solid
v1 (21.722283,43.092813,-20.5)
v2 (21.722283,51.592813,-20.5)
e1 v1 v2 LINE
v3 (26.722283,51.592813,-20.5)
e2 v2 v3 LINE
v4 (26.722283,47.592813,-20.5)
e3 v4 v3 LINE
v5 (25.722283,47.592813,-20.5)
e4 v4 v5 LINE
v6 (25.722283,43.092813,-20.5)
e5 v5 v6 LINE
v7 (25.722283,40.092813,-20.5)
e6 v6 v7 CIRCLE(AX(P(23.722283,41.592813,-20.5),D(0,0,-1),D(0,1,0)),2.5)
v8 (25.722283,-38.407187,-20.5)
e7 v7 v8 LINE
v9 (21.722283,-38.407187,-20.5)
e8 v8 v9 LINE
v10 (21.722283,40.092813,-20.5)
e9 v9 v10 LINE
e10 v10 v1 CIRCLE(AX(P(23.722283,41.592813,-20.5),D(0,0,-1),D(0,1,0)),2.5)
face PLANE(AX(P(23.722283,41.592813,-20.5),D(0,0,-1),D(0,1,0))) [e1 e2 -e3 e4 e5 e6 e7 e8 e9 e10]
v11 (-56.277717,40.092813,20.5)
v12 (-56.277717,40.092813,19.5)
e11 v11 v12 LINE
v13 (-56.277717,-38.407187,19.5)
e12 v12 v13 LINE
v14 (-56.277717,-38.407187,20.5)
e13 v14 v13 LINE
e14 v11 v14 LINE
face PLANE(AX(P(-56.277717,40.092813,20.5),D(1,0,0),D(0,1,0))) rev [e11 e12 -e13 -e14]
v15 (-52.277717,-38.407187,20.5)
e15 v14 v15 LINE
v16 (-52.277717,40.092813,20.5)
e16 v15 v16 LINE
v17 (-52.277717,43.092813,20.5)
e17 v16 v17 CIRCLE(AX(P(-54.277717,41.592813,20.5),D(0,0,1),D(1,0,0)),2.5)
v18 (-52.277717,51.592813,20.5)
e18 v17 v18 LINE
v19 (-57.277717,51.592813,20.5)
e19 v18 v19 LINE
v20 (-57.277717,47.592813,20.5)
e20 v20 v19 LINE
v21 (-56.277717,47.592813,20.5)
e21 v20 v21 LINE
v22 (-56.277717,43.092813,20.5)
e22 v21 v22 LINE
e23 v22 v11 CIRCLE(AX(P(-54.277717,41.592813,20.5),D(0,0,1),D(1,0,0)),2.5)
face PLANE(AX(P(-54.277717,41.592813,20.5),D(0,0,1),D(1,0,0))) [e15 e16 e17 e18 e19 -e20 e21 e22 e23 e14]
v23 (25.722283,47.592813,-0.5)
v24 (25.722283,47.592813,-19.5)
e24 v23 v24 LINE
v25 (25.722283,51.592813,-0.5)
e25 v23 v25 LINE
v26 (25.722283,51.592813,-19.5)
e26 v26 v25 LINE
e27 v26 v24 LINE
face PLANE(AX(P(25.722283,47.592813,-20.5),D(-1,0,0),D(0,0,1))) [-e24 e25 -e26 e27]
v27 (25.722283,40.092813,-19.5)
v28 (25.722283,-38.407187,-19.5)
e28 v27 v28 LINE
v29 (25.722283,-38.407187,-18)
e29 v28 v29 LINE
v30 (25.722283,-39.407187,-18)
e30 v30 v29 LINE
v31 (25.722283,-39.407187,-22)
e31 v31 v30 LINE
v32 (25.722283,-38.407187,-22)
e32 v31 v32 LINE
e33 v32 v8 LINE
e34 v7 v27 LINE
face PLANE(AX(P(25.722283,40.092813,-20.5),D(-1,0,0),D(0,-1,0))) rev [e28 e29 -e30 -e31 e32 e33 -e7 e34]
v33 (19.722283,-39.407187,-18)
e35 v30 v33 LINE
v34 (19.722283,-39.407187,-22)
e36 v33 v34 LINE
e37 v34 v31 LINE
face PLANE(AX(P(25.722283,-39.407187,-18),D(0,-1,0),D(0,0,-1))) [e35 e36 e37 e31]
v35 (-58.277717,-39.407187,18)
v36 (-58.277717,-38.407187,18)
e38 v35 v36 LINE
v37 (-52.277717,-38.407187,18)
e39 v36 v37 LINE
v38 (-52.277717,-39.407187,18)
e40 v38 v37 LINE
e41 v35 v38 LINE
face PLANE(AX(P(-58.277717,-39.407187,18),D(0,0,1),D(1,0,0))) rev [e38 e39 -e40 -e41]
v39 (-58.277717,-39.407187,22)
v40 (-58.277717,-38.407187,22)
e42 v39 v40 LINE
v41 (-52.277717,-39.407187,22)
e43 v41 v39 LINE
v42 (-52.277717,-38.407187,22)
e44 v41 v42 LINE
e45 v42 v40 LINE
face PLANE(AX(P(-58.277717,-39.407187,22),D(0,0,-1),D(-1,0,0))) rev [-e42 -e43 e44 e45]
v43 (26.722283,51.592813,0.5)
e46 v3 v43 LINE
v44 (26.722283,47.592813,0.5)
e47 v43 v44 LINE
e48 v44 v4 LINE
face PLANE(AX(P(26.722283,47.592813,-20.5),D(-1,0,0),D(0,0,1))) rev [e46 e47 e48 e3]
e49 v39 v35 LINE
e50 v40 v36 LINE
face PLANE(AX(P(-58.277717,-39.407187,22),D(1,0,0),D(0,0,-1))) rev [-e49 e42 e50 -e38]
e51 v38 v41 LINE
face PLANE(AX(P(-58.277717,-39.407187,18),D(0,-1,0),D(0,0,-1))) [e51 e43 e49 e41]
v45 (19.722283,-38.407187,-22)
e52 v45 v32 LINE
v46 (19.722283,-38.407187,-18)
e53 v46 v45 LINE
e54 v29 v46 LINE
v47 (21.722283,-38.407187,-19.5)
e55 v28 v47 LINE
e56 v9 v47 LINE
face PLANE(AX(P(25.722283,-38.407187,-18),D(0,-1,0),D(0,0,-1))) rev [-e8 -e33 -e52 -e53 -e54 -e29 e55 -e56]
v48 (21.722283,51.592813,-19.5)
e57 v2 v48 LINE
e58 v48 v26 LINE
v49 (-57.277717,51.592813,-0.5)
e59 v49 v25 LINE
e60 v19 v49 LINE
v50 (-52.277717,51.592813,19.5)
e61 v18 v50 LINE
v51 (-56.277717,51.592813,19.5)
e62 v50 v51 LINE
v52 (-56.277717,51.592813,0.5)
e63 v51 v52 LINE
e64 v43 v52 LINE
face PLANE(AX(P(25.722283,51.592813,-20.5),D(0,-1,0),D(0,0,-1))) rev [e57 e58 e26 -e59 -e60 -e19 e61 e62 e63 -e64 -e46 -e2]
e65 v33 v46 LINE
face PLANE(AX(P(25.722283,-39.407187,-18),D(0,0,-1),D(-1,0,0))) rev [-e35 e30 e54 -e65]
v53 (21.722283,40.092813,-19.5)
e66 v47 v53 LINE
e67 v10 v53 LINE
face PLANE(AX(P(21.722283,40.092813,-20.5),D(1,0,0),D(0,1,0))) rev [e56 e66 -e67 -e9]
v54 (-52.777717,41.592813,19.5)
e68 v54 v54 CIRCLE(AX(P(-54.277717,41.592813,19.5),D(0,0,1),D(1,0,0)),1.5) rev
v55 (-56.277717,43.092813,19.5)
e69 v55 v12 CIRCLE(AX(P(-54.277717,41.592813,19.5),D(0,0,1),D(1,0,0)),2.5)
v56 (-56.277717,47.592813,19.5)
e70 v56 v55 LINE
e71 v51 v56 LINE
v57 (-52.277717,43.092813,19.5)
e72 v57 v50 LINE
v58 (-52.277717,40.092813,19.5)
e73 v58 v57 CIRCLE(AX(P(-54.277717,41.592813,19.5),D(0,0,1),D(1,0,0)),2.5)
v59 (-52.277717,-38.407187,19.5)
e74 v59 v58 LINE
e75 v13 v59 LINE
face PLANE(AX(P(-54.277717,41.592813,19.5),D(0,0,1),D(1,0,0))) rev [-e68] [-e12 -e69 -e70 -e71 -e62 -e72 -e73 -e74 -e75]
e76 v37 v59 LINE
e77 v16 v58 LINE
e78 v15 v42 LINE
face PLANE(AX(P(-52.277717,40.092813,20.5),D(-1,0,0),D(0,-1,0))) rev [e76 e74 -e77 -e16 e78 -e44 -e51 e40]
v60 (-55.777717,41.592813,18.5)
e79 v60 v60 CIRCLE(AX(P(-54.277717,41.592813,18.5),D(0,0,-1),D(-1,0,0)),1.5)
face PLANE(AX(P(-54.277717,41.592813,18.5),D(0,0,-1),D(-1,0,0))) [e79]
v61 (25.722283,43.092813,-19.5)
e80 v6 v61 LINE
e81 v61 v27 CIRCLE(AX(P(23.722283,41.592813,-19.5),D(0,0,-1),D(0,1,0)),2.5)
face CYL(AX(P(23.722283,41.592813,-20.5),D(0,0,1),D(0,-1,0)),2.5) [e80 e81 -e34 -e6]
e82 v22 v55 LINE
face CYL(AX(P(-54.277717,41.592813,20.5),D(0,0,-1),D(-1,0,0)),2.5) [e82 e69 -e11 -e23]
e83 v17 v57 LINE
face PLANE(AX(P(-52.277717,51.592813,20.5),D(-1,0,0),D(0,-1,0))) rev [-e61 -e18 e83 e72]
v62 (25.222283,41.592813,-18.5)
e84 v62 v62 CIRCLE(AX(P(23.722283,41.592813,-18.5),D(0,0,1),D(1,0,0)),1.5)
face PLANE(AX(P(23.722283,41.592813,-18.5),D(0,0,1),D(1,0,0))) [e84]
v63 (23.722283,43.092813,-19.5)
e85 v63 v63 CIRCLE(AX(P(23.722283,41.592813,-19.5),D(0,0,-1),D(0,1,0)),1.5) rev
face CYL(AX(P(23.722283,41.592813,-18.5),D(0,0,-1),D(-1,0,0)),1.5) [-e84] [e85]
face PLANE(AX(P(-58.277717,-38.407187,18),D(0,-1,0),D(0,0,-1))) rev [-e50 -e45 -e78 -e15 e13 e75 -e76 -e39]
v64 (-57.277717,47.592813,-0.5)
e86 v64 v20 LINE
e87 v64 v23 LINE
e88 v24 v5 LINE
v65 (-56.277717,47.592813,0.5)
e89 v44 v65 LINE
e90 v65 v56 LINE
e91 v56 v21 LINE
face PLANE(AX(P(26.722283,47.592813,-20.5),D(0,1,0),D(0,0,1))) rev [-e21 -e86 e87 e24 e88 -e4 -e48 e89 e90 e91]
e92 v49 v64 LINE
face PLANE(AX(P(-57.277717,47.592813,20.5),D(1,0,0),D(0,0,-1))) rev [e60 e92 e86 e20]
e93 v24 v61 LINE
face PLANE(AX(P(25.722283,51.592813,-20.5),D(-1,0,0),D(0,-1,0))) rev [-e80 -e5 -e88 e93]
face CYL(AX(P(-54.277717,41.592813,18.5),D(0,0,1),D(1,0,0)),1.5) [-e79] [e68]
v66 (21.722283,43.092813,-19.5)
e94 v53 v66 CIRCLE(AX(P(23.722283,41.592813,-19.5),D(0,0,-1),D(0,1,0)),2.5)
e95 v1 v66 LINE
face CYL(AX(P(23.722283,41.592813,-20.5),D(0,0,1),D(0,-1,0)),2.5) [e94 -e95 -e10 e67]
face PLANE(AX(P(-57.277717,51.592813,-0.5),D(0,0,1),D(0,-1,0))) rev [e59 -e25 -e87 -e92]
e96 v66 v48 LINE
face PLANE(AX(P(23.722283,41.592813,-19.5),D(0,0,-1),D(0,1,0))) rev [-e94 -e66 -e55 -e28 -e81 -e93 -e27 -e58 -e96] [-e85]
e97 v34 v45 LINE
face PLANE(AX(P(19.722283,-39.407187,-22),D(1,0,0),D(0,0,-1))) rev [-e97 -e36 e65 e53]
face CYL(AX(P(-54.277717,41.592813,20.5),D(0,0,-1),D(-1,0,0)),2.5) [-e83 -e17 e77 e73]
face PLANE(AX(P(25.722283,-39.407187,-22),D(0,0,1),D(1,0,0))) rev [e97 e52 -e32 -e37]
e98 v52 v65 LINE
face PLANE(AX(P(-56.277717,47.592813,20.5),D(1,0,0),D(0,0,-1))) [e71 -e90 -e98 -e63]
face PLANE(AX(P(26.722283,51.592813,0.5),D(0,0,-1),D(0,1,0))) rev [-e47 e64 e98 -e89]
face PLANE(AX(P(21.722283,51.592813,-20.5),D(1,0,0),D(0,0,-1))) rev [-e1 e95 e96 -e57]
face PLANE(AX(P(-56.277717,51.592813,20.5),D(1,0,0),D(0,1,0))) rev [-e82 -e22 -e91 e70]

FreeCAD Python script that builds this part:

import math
import FreeCAD as App
import Part
import Sketcher


def add_polygon(sketch, points):
    """Adds a closed chain of lines whose ends are joined by coincident constraints."""
    first, n = sketch.GeometryCount, len(points)
    for a, b in zip(points, points[1:] + points[:1]):
        sketch.addGeometry(Part.LineSegment(App.Vector(*a, 0), App.Vector(*b, 0)), False)
    for i in range(n):
        sketch.addConstraint(Sketcher.Constraint("Coincident", first + i, 2, first + (i + 1) % n, 1))

doc = App.newDocument("Part")
params = doc.addObject("Spreadsheet::Sheet", "Params")
for row, (alias, value) in enumerate([
    ("sketch1_radius", "2.5 mm"),
    ("sketch1_width", "4 mm"),
    ("sketch1_height", "78.5 mm"),
    ("sketch1_height2", "8.5 mm"),
    ("pad1_length", "1 mm"),
    ("sketch2_diameter", "3 mm"),
    ("pad2_length", "1 mm"),
    ("sketch3_radius", "2.5 mm"),
    ("sketch3_width", "4 mm"),
    ("sketch3_height", "78.5 mm"),
    ("sketch3_height2", "8.5 mm"),
    ("pad3_length", "1 mm"),
    ("sketch4_diameter", "3 mm"),
    ("pad4_length", "1 mm"),
    ("sketch5_width", "82 mm"),
    ("sketch5_height", "4 mm"),
    ("pad5_length", "1 mm"),
    ("sketch6_width", "4 mm"),
    ("sketch6_height", "21 mm"),
    ("pad6_length", "1 mm"),
    ("sketch7_width", "4 mm"),
    ("sketch7_height", "21 mm"),
    ("pad7_length", "1 mm"),
    ("sketch8_width", "6 mm"),
    ("sketch8_height", "4 mm"),
    ("pad8_length", "1 mm"),
], start=1):
    params.set(f"A{row}", alias)
    params.set(f"B{row}", "=" + value)
    params.setAlias(f"B{row}", alias)

body = doc.addObject("PartDesign::Body", "Body")

# Sketch on XY plane
sketch1 = doc.addObject("Sketcher::SketchObject", "Sketch")
body.addObject(sketch1)
sketch1.AttachmentSupport = (doc.XY_Plane, [""])
sketch1.MapMode = "FlatFace"
sketch1.AttachmentOffset = App.Placement(App.Vector(0, 0, -19.5), App.Rotation())
sketch1.addGeometry([
    Part.LineSegment(App.Vector(21.7, -38.4, 0), App.Vector(21.7, 40.1, 0)),  # 0
    Part.ArcOfCircle(Part.Circle(App.Vector(23.7, 41.6, 0), App.Vector(0, 0, 1), 2.5), math.radians(143), math.radians(217)),  # 1
    Part.LineSegment(App.Vector(21.7, 43.1, 0), App.Vector(21.7, 51.6, 0)),  # 2
    Part.LineSegment(App.Vector(21.7, 51.6, 0), App.Vector(25.7, 51.6, 0)),  # 3
    Part.LineSegment(App.Vector(25.7, 51.6, 0), App.Vector(25.7, 43.1, 0)),  # 4
    Part.ArcOfCircle(Part.Circle(App.Vector(23.7, 41.6, 0), App.Vector(0, 0, 1), 2.5), math.radians(-37), math.radians(37)),  # 5
    Part.LineSegment(App.Vector(25.7, 40.1, 0), App.Vector(25.7, -38.4, 0)),  # 6
    Part.LineSegment(App.Vector(25.7, -38.4, 0), App.Vector(21.7, -38.4, 0)),  # 7
], False)
sketch1.addConstraint([
    Sketcher.Constraint("Coincident", 0, 2, 1, 2),
    Sketcher.Constraint("Coincident", 1, 1, 2, 1),
    Sketcher.Constraint("Coincident", 2, 2, 3, 1),
    Sketcher.Constraint("Coincident", 3, 2, 4, 1),
    Sketcher.Constraint("Coincident", 4, 2, 5, 2),
    Sketcher.Constraint("Coincident", 5, 1, 6, 1),
    Sketcher.Constraint("Coincident", 6, 2, 7, 1),
    Sketcher.Constraint("Coincident", 7, 2, 0, 1),
    Sketcher.Constraint("Vertical", 0),
    Sketcher.Constraint("Vertical", 2),
    Sketcher.Constraint("Horizontal", 3),
    Sketcher.Constraint("Vertical", 4),
    Sketcher.Constraint("Vertical", 6),
    Sketcher.Constraint("Horizontal", 7),
    Sketcher.Constraint("Coincident", 5, 3, 1, 3),
    Sketcher.Constraint("Equal", 1, 5),
    Sketcher.Constraint("Horizontal", 1, 1, 4, 2),
    Sketcher.Constraint("Horizontal", 0, 2, 5, 1),
    Sketcher.Constraint("Vertical", 0, 2, 1, 1),
    Sketcher.Constraint("Radius", 1, 2.5),
    Sketcher.Constraint("DistanceX", 3, 1, 3, 2, 4.0),
    Sketcher.Constraint("DistanceY", 0, 1, 0, 2, 78.5),
    Sketcher.Constraint("DistanceY", 2, 1, 2, 2, 8.5),
    Sketcher.Constraint("DistanceX", -1, 1, 1, 3, 23.722283),
    Sketcher.Constraint("DistanceY", -1, 1, 1, 3, 41.592813),
])
sketch1.setExpression("Constraints[19]", "Params.sketch1_radius")
sketch1.setExpression("Constraints[20]", "Params.sketch1_width")
sketch1.setExpression("Constraints[21]", "Params.sketch1_height")
sketch1.setExpression("Constraints[22]", "Params.sketch1_height2")
pad1 = doc.addObject("PartDesign::Pad", "Pad")
body.addObject(pad1)
pad1.Profile = sketch1
pad1.setExpression("Length", "Params.pad1_length")
pad1.Reversed = True

# Sketch on XY plane
sketch2 = doc.addObject("Sketcher::SketchObject", "Sketch001")
body.addObject(sketch2)
sketch2.AttachmentSupport = (doc.XY_Plane, [""])
sketch2.MapMode = "FlatFace"
sketch2.AttachmentOffset = App.Placement(App.Vector(0, 0, -19.5), App.Rotation())
sketch2.addGeometry(Part.Circle(App.Vector(23.7, 41.6, 0), App.Vector(0, 0, 1), 1.5), False)
sketch2.addConstraint([
    Sketcher.Constraint("Diameter", 0, 3.0),
    Sketcher.Constraint("DistanceX", -1, 1, 0, 3, 23.722283),
    Sketcher.Constraint("DistanceY", -1, 1, 0, 3, 41.592813),
])
sketch2.setExpression("Constraints[0]", "Params.sketch2_diameter")
pad2 = doc.addObject("PartDesign::Pad", "Pad001")
body.addObject(pad2)
pad2.Profile = sketch2
pad2.setExpression("Length", "Params.pad2_length")
body2 = doc.addObject("PartDesign::Body", "Body001")

# Sketch on XY plane
sketch3 = doc.addObject("Sketcher::SketchObject", "Sketch002")
body2.addObject(sketch3)
sketch3.AttachmentSupport = (doc.getObject("XY_Plane001"), [""])
sketch3.MapMode = "FlatFace"
sketch3.AttachmentOffset = App.Placement(App.Vector(0, 0, 19.5), App.Rotation())
sketch3.addGeometry([
    Part.LineSegment(App.Vector(-52.3, -38.4, 0), App.Vector(-52.3, 40.1, 0)),  # 0
    Part.ArcOfCircle(Part.Circle(App.Vector(-54.3, 41.6, 0), App.Vector(0, 0, 1), 2.5), math.radians(-37), math.radians(37)),  # 1
    Part.LineSegment(App.Vector(-52.3, 43.1, 0), App.Vector(-52.3, 51.6, 0)),  # 2
    Part.LineSegment(App.Vector(-52.3, 51.6, 0), App.Vector(-56.3, 51.6, 0)),  # 3
    Part.LineSegment(App.Vector(-56.3, 51.6, 0), App.Vector(-56.3, 43.1, 0)),  # 4
    Part.ArcOfCircle(Part.Circle(App.Vector(-54.3, 41.6, 0), App.Vector(0, 0, 1), 2.5), math.radians(143), math.radians(217)),  # 5
    Part.LineSegment(App.Vector(-56.3, 40.1, 0), App.Vector(-56.3, -38.4, 0)),  # 6
    Part.LineSegment(App.Vector(-56.3, -38.4, 0), App.Vector(-52.3, -38.4, 0)),  # 7
], False)
sketch3.addConstraint([
    Sketcher.Constraint("Coincident", 0, 2, 1, 1),
    Sketcher.Constraint("Coincident", 1, 2, 2, 1),
    Sketcher.Constraint("Coincident", 2, 2, 3, 1),
    Sketcher.Constraint("Coincident", 3, 2, 4, 1),
    Sketcher.Constraint("Coincident", 4, 2, 5, 1),
    Sketcher.Constraint("Coincident", 5, 2, 6, 1),
    Sketcher.Constraint("Coincident", 6, 2, 7, 1),
    Sketcher.Constraint("Coincident", 7, 2, 0, 1),
    Sketcher.Constraint("Vertical", 0),
    Sketcher.Constraint("Vertical", 2),
    Sketcher.Constraint("Horizontal", 3),
    Sketcher.Constraint("Vertical", 4),
    Sketcher.Constraint("Vertical", 6),
    Sketcher.Constraint("Horizontal", 7),
    Sketcher.Constraint("Coincident", 5, 3, 1, 3),
    Sketcher.Constraint("Equal", 1, 5),
    Sketcher.Constraint("Horizontal", 1, 2, 4, 2),
    Sketcher.Constraint("Horizontal", 0, 2, 5, 2),
    Sketcher.Constraint("Vertical", 0, 2, 1, 2),
    Sketcher.Constraint("Radius", 1, 2.5),
    Sketcher.Constraint("DistanceX", 3, 2, 3, 1, 4.0),
    Sketcher.Constraint("DistanceY", 0, 1, 0, 2, 78.5),
    Sketcher.Constraint("DistanceY", 2, 1, 2, 2, 8.5),
    Sketcher.Constraint("DistanceX", 1, 3, -1, 1, 54.277717),
    Sketcher.Constraint("DistanceY", -1, 1, 1, 3, 41.592813),
])
sketch3.setExpression("Constraints[19]", "Params.sketch3_radius")
sketch3.setExpression("Constraints[20]", "Params.sketch3_width")
sketch3.setExpression("Constraints[21]", "Params.sketch3_height")
sketch3.setExpression("Constraints[22]", "Params.sketch3_height2")
pad3 = doc.addObject("PartDesign::Pad", "Pad002")
body2.addObject(pad3)
pad3.Profile = sketch3
pad3.setExpression("Length", "Params.pad3_length")

# Sketch on XY plane
sketch4 = doc.addObject("Sketcher::SketchObject", "Sketch003")
body2.addObject(sketch4)
sketch4.AttachmentSupport = (doc.getObject("XY_Plane001"), [""])
sketch4.MapMode = "FlatFace"
sketch4.AttachmentOffset = App.Placement(App.Vector(0, 0, 19.5), App.Rotation())
sketch4.addGeometry(Part.Circle(App.Vector(-54.3, 41.6, 0), App.Vector(0, 0, 1), 1.5), False)
sketch4.addConstraint([
    Sketcher.Constraint("Diameter", 0, 3.0),
    Sketcher.Constraint("DistanceX", 0, 3, -1, 1, 54.277717),
    Sketcher.Constraint("DistanceY", -1, 1, 0, 3, 41.592813),
])
sketch4.setExpression("Constraints[0]", "Params.sketch4_diameter")
pad4 = doc.addObject("PartDesign::Pad", "Pad003")
body2.addObject(pad4)
pad4.Profile = sketch4
pad4.setExpression("Length", "Params.pad4_length")
pad4.Reversed = True
body3 = doc.addObject("PartDesign::Body", "Body002")

# Sketch on XY plane
sketch5 = doc.addObject("Sketcher::SketchObject", "Sketch004")
body3.addObject(sketch5)
sketch5.AttachmentSupport = (doc.getObject("XY_Plane002"), [""])
sketch5.MapMode = "FlatFace"
add_polygon(sketch5, [(-56.3, 51.6), (-56.3, 47.6), (25.7, 47.6), (25.7, 51.6)])  # lines 0-3
sketch5.addConstraint([
    Sketcher.Constraint("Vertical", 0),
    Sketcher.Constraint("Horizontal", 1),
    Sketcher.Constraint("Vertical", 2),
    Sketcher.Constraint("Horizontal", 3),
    Sketcher.Constraint("DistanceX", 1, 1, 1, 2, 82.0),
    Sketcher.Constraint("DistanceY", 0, 2, 0, 1, 4.0),
    Sketcher.Constraint("DistanceX", 0, 2, -1, 1, 56.277717),
    Sketcher.Constraint("DistanceY", -1, 1, 0, 2, 47.592813),
])
sketch5.setExpression("Constraints[8]", "Params.sketch5_width")
sketch5.setExpression("Constraints[9]", "Params.sketch5_height")
pad5 = doc.addObject("PartDesign::Pad", "Pad004")
body3.addObject(pad5)
pad5.Profile = sketch5
pad5.setExpression("Length", "Params.pad5_length")
pad5.Midplane = True
body2.AllowCompound = True
doc.recompute()

boolean = doc.addObject("PartDesign::Boolean", "Boolean")
body2.addObject(boolean)
boolean.Type = "Fuse"
boolean.addObjects([body3])

# Sketch on YZ plane
sketch6 = doc.addObject("Sketcher::SketchObject", "Sketch005")
body2.addObject(sketch6)
sketch6.AttachmentSupport = (doc.getObject("YZ_Plane001"), [""])
sketch6.MapMode = "FlatFace"
sketch6.AttachmentOffset = App.Placement(App.Vector(0, 0, -56.277717), App.Rotation())
add_polygon(sketch6, [(51.6, -0.5), (47.6, -0.5), (47.6, 20.5), (51.6, 20.5)])  # lines 0-3
sketch6.addConstraint([
    Sketcher.Constraint("Horizontal", 0),
    Sketcher.Constraint("Vertical", 1),
    Sketcher.Constraint("Horizontal", 2),
    Sketcher.Constraint("Vertical", 3),
    Sketcher.Constraint("DistanceX", 0, 2, 0, 1, 4.0),
    Sketcher.Constraint("DistanceY", 1, 1, 1, 2, 21.0),
    Sketcher.Constraint("DistanceY", 0, 2, -1, 1, 0.5),
    Sketcher.Constraint("DistanceX", -1, 1, 0, 2, 47.592813),
])
sketch6.setExpression("Constraints[8]", "Params.sketch6_width")
sketch6.setExpression("Constraints[9]", "Params.sketch6_height")
pad6 = doc.addObject("PartDesign::Pad", "Pad005")
body2.addObject(pad6)
pad6.Profile = sketch6
pad6.setExpression("Length", "Params.pad6_length")
pad6.Reversed = True
body.AllowCompound = True
doc.recompute()

boolean2 = doc.addObject("PartDesign::Boolean", "Boolean001")
body.addObject(boolean2)
boolean2.Type = "Fuse"
boolean2.addObjects([body2])

# Sketch on YZ plane
sketch7 = doc.addObject("Sketcher::SketchObject", "Sketch006")
body.addObject(sketch7)
sketch7.AttachmentSupport = (doc.YZ_Plane, [""])
sketch7.MapMode = "FlatFace"
sketch7.AttachmentOffset = App.Placement(App.Vector(0, 0, 25.722283), App.Rotation())
add_polygon(sketch7, [(51.6, 0.5), (47.6, 0.5), (47.6, -20.5), (51.6, -20.5)])  # lines 0-3
sketch7.addConstraint([
    Sketcher.Constraint("Horizontal", 0),
    Sketcher.Constraint("Vertical", 1),
    Sketcher.Constraint("Horizontal", 2),
    Sketcher.Constraint("Vertical", 3),
    Sketcher.Constraint("DistanceX", 0, 2, 0, 1, 4.0),
    Sketcher.Constraint("DistanceY", 1, 2, 1, 1, 21.0),
    Sketcher.Constraint("DistanceY", -1, 1, 0, 2, 0.5),
    Sketcher.Constraint("DistanceX", -1, 1, 0, 2, 47.592813),
])
sketch7.setExpression("Constraints[8]", "Params.sketch7_width")
sketch7.setExpression("Constraints[9]", "Params.sketch7_height")
pad7 = doc.addObject("PartDesign::Pad", "Pad006")
body.addObject(pad7)
pad7.Profile = sketch7
pad7.setExpression("Length", "Params.pad7_length")

# Sketch on XZ plane
sketch8 = doc.addObject("Sketcher::SketchObject", "Sketch007")
body.addObject(sketch8)
sketch8.AttachmentSupport = (doc.XZ_Plane, [""])
sketch8.MapMode = "FlatFace"
sketch8.AttachmentOffset = App.Placement(App.Vector(0, 0, 38.407187), App.Rotation())
add_polygon(sketch8, [(-58.3, 22), (-58.3, 18), (-52.3, 18), (-52.3, 22)])  # lines 0-3
add_polygon(sketch8, [(19.7, -18), (19.7, -22), (25.7, -22), (25.7, -18)])  # lines 4-7
sketch8.addConstraint([
    Sketcher.Constraint("Vertical", 0),
    Sketcher.Constraint("Horizontal", 1),
    Sketcher.Constraint("Vertical", 2),
    Sketcher.Constraint("Horizontal", 3),
    Sketcher.Constraint("Vertical", 4),
    Sketcher.Constraint("Horizontal", 5),
    Sketcher.Constraint("Vertical", 6),
    Sketcher.Constraint("Horizontal", 7),
    Sketcher.Constraint("Equal", 3, 5),
    Sketcher.Constraint("Equal", 2, 4),
    Sketcher.Constraint("DistanceX", 1, 1, 1, 2, 6.0),
    Sketcher.Constraint("DistanceY", 0, 2, 0, 1, 4.0),
    Sketcher.Constraint("DistanceY", -1, 1, 0, 2, 18.0),
    Sketcher.Constraint("DistanceY", 4, 2, -1, 1, 22.0),
    Sketcher.Constraint("DistanceX", 1, 2, 4, 2, 72.0),
    Sketcher.Constraint("DistanceX", 0, 2, -1, 1, 58.277717),
])
sketch8.setExpression("Constraints[18]", "Params.sketch8_width")
sketch8.setExpression("Constraints[19]", "Params.sketch8_height")
pad8 = doc.addObject("PartDesign::Pad", "Pad007")
body.addObject(pad8)
pad8.Profile = sketch8
pad8.setExpression("Length", "Params.pad8_length")

doc.recompute()
